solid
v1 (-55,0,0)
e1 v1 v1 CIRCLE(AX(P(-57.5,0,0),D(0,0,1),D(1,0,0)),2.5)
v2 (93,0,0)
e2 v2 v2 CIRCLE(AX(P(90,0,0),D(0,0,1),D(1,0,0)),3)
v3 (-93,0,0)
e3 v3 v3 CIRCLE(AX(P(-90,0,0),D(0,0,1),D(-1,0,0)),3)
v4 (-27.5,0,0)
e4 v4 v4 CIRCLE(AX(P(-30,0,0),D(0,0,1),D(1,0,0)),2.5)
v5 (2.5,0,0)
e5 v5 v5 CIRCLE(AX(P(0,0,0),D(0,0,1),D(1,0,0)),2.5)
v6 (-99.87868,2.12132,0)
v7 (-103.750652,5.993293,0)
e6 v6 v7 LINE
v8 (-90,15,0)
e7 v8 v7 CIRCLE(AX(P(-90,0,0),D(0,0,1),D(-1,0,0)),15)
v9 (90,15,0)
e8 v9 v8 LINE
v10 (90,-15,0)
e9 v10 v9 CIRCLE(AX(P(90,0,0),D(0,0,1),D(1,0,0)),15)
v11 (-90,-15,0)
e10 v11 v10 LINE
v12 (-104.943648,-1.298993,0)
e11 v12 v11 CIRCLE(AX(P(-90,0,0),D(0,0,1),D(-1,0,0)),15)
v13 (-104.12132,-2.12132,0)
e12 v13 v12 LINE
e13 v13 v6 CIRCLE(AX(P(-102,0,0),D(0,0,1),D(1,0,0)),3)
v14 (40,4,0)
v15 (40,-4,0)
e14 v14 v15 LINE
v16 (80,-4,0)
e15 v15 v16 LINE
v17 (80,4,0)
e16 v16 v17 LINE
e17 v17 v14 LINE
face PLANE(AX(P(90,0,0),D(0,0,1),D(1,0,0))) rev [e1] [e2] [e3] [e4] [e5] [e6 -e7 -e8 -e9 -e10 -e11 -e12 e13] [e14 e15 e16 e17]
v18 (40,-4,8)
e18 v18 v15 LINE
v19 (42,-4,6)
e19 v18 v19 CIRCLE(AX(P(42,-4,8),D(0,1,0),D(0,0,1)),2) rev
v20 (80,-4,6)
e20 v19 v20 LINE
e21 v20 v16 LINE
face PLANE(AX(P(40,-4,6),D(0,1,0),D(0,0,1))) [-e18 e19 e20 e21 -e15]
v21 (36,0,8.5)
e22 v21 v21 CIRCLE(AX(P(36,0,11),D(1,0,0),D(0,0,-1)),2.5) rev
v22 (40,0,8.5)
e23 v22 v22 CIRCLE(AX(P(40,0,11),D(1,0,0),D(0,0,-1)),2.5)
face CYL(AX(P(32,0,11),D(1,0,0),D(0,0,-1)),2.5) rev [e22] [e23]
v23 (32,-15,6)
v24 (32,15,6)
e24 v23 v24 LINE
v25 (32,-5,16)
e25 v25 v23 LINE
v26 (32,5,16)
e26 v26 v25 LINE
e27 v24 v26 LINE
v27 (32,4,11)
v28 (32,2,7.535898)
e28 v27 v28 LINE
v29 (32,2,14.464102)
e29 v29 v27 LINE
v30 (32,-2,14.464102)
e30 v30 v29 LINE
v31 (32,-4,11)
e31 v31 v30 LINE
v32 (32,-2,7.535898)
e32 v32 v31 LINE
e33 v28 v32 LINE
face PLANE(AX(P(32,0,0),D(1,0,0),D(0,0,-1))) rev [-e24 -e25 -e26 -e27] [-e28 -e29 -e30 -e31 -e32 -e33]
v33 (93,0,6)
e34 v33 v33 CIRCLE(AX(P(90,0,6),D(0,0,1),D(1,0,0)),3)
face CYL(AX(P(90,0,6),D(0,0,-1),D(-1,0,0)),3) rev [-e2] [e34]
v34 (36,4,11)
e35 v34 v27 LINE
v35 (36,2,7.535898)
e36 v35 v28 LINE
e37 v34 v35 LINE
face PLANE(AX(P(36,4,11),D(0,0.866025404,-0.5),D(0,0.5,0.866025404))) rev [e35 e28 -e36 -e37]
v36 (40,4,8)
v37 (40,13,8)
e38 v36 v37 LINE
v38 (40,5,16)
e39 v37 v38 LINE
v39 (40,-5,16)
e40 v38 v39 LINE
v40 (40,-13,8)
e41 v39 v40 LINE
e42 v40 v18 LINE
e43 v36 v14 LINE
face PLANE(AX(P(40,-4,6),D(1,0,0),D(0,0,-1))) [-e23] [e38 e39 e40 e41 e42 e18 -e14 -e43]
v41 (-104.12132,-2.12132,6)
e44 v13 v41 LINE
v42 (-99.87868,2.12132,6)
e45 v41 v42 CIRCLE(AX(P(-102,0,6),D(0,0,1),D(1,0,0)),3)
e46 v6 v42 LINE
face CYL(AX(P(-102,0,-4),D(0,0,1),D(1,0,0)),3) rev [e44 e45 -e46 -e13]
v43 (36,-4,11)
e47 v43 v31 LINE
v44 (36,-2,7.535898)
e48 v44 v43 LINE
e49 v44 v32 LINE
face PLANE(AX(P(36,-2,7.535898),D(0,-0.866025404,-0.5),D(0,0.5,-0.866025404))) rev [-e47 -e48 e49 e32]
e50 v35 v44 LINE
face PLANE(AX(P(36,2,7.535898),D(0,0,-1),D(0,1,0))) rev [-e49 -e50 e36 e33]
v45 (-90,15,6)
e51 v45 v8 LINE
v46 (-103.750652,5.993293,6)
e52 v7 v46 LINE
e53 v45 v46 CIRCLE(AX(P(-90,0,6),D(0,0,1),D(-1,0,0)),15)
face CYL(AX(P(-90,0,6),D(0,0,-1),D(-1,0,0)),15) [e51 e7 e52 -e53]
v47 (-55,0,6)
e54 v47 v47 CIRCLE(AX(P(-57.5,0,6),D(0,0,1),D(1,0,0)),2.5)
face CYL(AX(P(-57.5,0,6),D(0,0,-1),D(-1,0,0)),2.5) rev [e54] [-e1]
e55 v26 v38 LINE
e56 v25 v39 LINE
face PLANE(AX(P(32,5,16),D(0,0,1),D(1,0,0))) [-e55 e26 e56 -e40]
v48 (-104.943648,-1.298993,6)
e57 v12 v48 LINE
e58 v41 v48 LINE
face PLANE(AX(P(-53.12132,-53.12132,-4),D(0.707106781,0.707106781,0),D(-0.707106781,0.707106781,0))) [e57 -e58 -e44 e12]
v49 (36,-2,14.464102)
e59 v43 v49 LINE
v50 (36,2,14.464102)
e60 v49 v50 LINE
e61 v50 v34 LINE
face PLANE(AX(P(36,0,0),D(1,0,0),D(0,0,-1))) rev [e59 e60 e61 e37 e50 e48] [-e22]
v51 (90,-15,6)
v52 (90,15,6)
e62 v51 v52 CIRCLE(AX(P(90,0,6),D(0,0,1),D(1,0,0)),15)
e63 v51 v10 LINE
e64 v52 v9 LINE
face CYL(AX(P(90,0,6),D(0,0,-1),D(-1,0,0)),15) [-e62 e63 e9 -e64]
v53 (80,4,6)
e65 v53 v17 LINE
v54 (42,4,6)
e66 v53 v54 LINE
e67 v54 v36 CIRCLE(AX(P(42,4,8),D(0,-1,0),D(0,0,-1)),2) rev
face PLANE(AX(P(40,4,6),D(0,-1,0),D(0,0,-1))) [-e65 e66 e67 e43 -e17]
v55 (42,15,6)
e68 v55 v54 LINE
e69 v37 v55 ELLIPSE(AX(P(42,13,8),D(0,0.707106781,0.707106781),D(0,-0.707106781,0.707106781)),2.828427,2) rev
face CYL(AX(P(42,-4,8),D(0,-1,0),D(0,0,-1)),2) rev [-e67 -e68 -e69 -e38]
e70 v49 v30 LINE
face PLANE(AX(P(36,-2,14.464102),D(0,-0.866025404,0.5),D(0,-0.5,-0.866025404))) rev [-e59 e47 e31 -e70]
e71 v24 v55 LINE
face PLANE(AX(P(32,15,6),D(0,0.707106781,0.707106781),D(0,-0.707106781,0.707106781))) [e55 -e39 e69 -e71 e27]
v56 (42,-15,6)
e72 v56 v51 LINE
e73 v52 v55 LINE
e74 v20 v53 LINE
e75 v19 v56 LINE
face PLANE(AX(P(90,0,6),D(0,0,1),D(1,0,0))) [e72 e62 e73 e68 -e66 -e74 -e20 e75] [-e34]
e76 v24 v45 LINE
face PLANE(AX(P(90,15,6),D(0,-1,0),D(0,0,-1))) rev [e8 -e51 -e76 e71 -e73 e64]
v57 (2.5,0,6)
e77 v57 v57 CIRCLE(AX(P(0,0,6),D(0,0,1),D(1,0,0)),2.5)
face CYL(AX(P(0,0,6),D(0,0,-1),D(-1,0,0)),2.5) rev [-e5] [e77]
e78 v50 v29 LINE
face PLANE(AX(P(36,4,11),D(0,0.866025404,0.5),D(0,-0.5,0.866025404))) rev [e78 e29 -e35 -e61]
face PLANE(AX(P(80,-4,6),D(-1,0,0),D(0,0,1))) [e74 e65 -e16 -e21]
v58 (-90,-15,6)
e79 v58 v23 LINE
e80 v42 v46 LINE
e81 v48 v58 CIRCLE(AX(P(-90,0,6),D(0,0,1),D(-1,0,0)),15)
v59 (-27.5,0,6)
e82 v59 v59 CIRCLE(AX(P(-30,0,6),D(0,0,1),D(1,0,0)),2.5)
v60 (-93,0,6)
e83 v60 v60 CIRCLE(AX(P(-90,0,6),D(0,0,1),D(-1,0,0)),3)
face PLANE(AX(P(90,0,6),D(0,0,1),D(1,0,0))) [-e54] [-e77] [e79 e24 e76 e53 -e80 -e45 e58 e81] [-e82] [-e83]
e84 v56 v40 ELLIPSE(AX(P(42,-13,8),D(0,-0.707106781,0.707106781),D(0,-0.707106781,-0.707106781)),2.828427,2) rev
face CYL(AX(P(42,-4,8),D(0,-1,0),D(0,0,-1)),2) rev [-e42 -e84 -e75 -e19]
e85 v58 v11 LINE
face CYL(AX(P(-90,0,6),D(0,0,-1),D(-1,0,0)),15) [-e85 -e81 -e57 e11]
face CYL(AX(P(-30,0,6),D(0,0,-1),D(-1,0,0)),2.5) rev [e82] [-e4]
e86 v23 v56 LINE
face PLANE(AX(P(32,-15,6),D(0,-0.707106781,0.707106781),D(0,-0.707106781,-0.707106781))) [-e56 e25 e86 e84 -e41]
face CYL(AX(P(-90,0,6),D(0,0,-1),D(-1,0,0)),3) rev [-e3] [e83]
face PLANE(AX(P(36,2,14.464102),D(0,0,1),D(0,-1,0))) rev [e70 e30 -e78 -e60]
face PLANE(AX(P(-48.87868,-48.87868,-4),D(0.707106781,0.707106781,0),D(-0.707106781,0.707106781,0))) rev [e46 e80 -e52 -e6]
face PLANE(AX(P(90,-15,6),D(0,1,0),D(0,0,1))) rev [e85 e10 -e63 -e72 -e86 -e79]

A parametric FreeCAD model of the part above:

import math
import FreeCAD as App
import Part
import Sketcher
from FreeCAD import Vector
Q = App.Units.Quantity


def edges_at(feature, points):
    """Names of the edges that pass closest to the given points."""
    edges = feature.Shape.Edges
    near = lambda p: min(range(len(edges)), key=lambda i: edges[i].distToShape(Part.Vertex(*p))[0])
    return sorted({f"Edge{near(p) + 1}" for p in points})


def add_polygon(sketch, points):
    """Adds a closed chain of lines whose ends are joined by coincident constraints."""
    first, n = sketch.GeometryCount, len(points)
    for a, b in zip(points, points[1:] + points[:1]):
        sketch.addGeometry(Part.LineSegment(App.Vector(*a, 0), App.Vector(*b, 0)), False)
    for i in range(n):
        sketch.addConstraint(Sketcher.Constraint("Coincident", first + i, 2, first + (i + 1) % n, 1))

doc = App.newDocument("Part")
body = doc.addObject("PartDesign::Body", "Body")

sketch1 = body.newObject("Sketcher::SketchObject", "Sketch")
sketch1.AttachmentSupport = (doc.getObject("XY_Plane"), [""])
sketch1.MapMode = "FlatFace"
sketch1.addGeometry(Part.LineSegment(Vector(-90, -15, 0), Vector(90, -15, 0)), False)
sketch1.addGeometry(Part.ArcOfCircle(Part.Circle(Vector(90, 0, 0), Vector(0, 0, 1), 15), math.radians(-90), math.radians(90)), False)
sketch1.addGeometry(Part.LineSegment(Vector(90, 15, 0), Vector(-90, 15, 0)), False)
sketch1.addGeometry(Part.ArcOfCircle(Part.Circle(Vector(-90, 0, 0), Vector(0, 0, 1), 15), math.radians(90), math.radians(270)), False)
sketch1.addGeometry(Part.Circle(Vector(90, 0, 0), Vector(0, 0, 1), 3), False)
add_polygon(sketch1, [(40, -4), (40, 4), (80, 4), (80, -4)])
sketch1.addGeometry(Part.Circle(Vector(0, 0, 0), Vector(0, 0, 1), 2.5), False)
sketch1.addGeometry(Part.Circle(Vector(-30, 0, 0), Vector(0, 0, 1), 2.5), False)
sketch1.addGeometry(Part.Circle(Vector(-57.5, 0, 0), Vector(0, 0, 1), 2.5), False)
sketch1.addGeometry(Part.Circle(Vector(-90, 0, 0), Vector(0, 0, 1), 3), False)
sketch1.addConstraint(Sketcher.Constraint("Tangent", 0, 2, 1, 1))
sketch1.addConstraint(Sketcher.Constraint("Tangent", 1, 2, 2, 1))
sketch1.addConstraint(Sketcher.Constraint("Tangent", 2, 2, 3, 1))
sketch1.addConstraint(Sketcher.Constraint("Tangent", 3, 2, 0, 1))
sketch1.addConstraint(Sketcher.Constraint("Horizontal", 0))
sketch1.addConstraint(Sketcher.Constraint("Horizontal", 2))
sketch1.addConstraint(Sketcher.Constraint("Vertical", 5))
sketch1.addConstraint(Sketcher.Constraint("Horizontal", 6))
sketch1.addConstraint(Sketcher.Constraint("Vertical", 7))
sketch1.addConstraint(Sketcher.Constraint("Horizontal", 8))
sketch1.addConstraint(Sketcher.Constraint("Coincident", 9, 3, -1, 1))
sketch1.addConstraint(Sketcher.Constraint("Coincident", 4, 3, 1, 3))
sketch1.addConstraint(Sketcher.Constraint("Coincident", 12, 3, 3, 3))
sketch1.addConstraint(Sketcher.Constraint("Equal", 9, 10))
sketch1.addConstraint(Sketcher.Constraint("Equal", 10, 11))
sketch1.addConstraint(Sketcher.Constraint("Equal", 4, 12))
sketch1.addConstraint(Sketcher.Constraint("Symmetric", 1, 3, 3, 3, -1, 1))
sketch1.addConstraint(Sketcher.Constraint("PointOnObject", 10, 3, -1))
sketch1.addConstraint(Sketcher.Constraint("PointOnObject", 11, 3, -1))
sketch1.addConstraint(Sketcher.Constraint("Diameter", 4, Q("6 mm")))
sketch1.addConstraint(Sketcher.Constraint("Diameter", 9, Q("5 mm")))
sketch1.addConstraint(Sketcher.Constraint("Radius", 1, Q("15 mm")))
sketch1.addConstraint(Sketcher.Constraint("DistanceX", 0, 1, 0, 2, Q("180 mm")))
sketch1.addConstraint(Sketcher.Constraint("DistanceX", 6, 1, 6, 2, Q("40 mm")))
sketch1.addConstraint(Sketcher.Constraint("DistanceY", 5, 1, 5, 2, Q("8 mm")))
sketch1.addConstraint(Sketcher.Constraint("DistanceX", 10, 3, -1, 1, Q("30 mm")))
sketch1.addConstraint(Sketcher.Constraint("DistanceX", -1, 1, 5, 2, Q("40 mm")))
sketch1.addConstraint(Sketcher.Constraint("DistanceY", -1, 1, 5, 2, Q("4 mm")))
sketch1.addConstraint(Sketcher.Constraint("DistanceX", 11, 3, -1, 1, Q("57.5 mm")))
pad1 = body.newObject("PartDesign::Pad", "Pad")
pad1.Profile = sketch1
pad1.Length = 6

sketch2 = body.newObject("Sketcher::SketchObject", "Sketch001")
sketch2.AttachmentSupport = (doc.getObject("YZ_Plane"), [""])
sketch2.MapMode = "FlatFace"
sketch2.AttachmentOffset = App.Placement(Vector(0, 0, 40), App.Rotation())
add_polygon(sketch2, [(5, 16), (-5, 16), (-15, 6), (15, 6)])
sketch2.addGeometry(Part.Circle(Vector(0, 11, 0), Vector(0, 0, 1), 2.5), False)
sketch2.addConstraint(Sketcher.Constraint("Horizontal", 0))
sketch2.addConstraint(Sketcher.Constraint("Horizontal", 2))
sketch2.addConstraint(Sketcher.Constraint("PointOnObject", 4, 3, -2))
sketch2.addConstraint(Sketcher.Constraint("Perpendicular", 1, 3))
sketch2.addConstraint(Sketcher.Constraint("Equal", 1, 3))
sketch2.addConstraint(Sketcher.Constraint("Diameter", 4, Q("5 mm")))
sketch2.addConstraint(Sketcher.Constraint("DistanceX", 0, 2, 0, 1, Q("10 mm")))
sketch2.addConstraint(Sketcher.Constraint("DistanceX", 2, 1, 2, 2, Q("30 mm")))
sketch2.addConstraint(Sketcher.Constraint("DistanceY", -1, 1, 4, 3, Q("11 mm")))
sketch2.addConstraint(Sketcher.Constraint("DistanceX", 0, 2, -1, 1, Q("5 mm")))
sketch2.addConstraint(Sketcher.Constraint("DistanceY", -1, 1, 0, 2, Q("16 mm")))
pad2 = body.newObject("PartDesign::Pad", "Pad001")
pad2.Profile = sketch2
pad2.Length = 8
pad2.Reversed = True
doc.recompute()

fillet = body.newObject("PartDesign::Fillet", "Fillet")
fillet.Base = (pad2, edges_at(pad2, [(40, 9.5, 6), (40, -9.5, 6)]))
fillet.Radius = 2

sketch3 = body.newObject("Sketcher::SketchObject", "Sketch002")
sketch3.AttachmentSupport = (doc.getObject("YZ_Plane"), [""])
sketch3.MapMode = "FlatFace"
sketch3.AttachmentOffset = App.Placement(Vector(0, 0, 32), App.Rotation())
add_polygon(sketch3, [(2, 14.5), (4, 11), (2, 7.5), (-2, 7.5), (-4, 11), (-2, 14.5)])
sketch3.addConstraint(Sketcher.Constraint("Horizontal", 2))
sketch3.addConstraint(Sketcher.Constraint("Horizontal", 5))
sketch3.addConstraint(Sketcher.Constraint("Symmetric", 0, 2, 3, 2, -2))
sketch3.addConstraint(Sketcher.Constraint("Parallel", 0, 3))
sketch3.addConstraint(Sketcher.Constraint("Parallel", 1, 4))
sketch3.addConstraint(Sketcher.Constraint("Vertical", 2, 2, 4, 2))
sketch3.addConstraint(Sketcher.Constraint("Vertical", 1, 2, 5, 2))
sketch3.addConstraint(Sketcher.Constraint("DistanceX", 2, 2, 2, 1, Q("4 mm")))
sketch3.addConstraint(Sketcher.Constraint("Angle", 0, Q("-60 deg")))
sketch3.addConstraint(Sketcher.Constraint("Distance", 0, Q("4 mm")))
sketch3.addConstraint(Sketcher.Constraint("DistanceY", -1, 1, 0, 2, Q("11 mm")))
pocket1 = body.newObject("PartDesign::Pocket", "Pocket")
pocket1.Profile = sketch3
pocket1.Length = 4
pocket1.Reversed = True

sketch4 = body.newObject("Sketcher::SketchObject", "Sketch003")
sketch4.AttachmentSupport = (doc.getObject("XY_Plane"), [""])
sketch4.MapMode = "FlatFace"
sketch4.AttachmentOffset = App.Placement(Vector(0, 0, -4), App.Rotation())
sketch4.addGeometry(Part.ArcOfCircle(Part.Circle(Vector(-102, 0, 0), Vector(0, 0, 1), 3), math.radians(-135), math.radians(0)), False)
sketch4.addGeometry(Part.ArcOfCircle(Part.Circle(Vector(-102, 0, 0), Vector(0, 0, 1), 3), math.radians(0), math.radians(45)), False)
sketch4.addGeometry(Part.LineSegment(Vector(-99.9, 2.1, 0), Vector(-103.8, 6, 0)), False)
sketch4.addGeometry(Part.ArcOfCircle(Part.Circle(Vector(-90, 0, 0), Vector(0, 0, 1), 15), math.radians(156), math.radians(180)), False)
sketch4.addGeometry(Part.ArcOfCircle(Part.Circle(Vector(-90, 0, 0), Vector(0, 0, 1), 15), math.radians(180), math.radians(184.97)), False)
sketch4.addGeometry(Part.LineSegment(Vector(-104.9, -1.3, 0), Vector(-104.1, -2.1, 0)), False)
sketch4.addConstraint(Sketcher.Constraint("Tangent", 0, 2, 1, 1))
sketch4.addConstraint(Sketcher.Constraint("Tangent", 1, 2, 2, 1))
sketch4.addConstraint(Sketcher.Constraint("Coincident", 2, 2, 3, 1))
sketch4.addConstraint(Sketcher.Constraint("Tangent", 3, 2, 4, 1))
sketch4.addConstraint(Sketcher.Constraint("Coincident", 4, 2, 5, 1))
sketch4.addConstraint(Sketcher.Constraint("Tangent", 5, 2, 0, 1))
sketch4.addConstraint(Sketcher.Constraint("Equal", 0, 1))
sketch4.addConstraint(Sketcher.Constraint("Equal", 3, 4))
sketch4.addConstraint(Sketcher.Constraint("PointOnObject", 0, 3, -1))
sketch4.addConstraint(Sketcher.Constraint("PointOnObject", 3, 3, -1))
sketch4.addConstraint(Sketcher.Constraint("PointOnObject", 0, 2, -1))
sketch4.addConstraint(Sketcher.Constraint("PointOnObject", 3, 2, -1))
sketch4.addConstraint(Sketcher.Constraint("Parallel", 2, 5))
sketch4.addConstraint(Sketcher.Constraint("Radius", 0, Q("3 mm")))
sketch4.addConstraint(Sketcher.Constraint("Radius", 3, Q("15 mm")))
sketch4.addConstraint(Sketcher.Constraint("Angle", 2, Q("135 deg")))
sketch4.addConstraint(Sketcher.Constraint("DistanceX", 0, 3, -1, 1, Q("102 mm")))
sketch4.addConstraint(Sketcher.Constraint("DistanceX", 3, 3, -1, 1, Q("90 mm")))
pocket2 = body.newObject("PartDesign::Pocket", "Pocket001")
pocket2.Profile = sketch4
pocket2.Length = 10
pocket2.Reversed = True

doc.recompute()
